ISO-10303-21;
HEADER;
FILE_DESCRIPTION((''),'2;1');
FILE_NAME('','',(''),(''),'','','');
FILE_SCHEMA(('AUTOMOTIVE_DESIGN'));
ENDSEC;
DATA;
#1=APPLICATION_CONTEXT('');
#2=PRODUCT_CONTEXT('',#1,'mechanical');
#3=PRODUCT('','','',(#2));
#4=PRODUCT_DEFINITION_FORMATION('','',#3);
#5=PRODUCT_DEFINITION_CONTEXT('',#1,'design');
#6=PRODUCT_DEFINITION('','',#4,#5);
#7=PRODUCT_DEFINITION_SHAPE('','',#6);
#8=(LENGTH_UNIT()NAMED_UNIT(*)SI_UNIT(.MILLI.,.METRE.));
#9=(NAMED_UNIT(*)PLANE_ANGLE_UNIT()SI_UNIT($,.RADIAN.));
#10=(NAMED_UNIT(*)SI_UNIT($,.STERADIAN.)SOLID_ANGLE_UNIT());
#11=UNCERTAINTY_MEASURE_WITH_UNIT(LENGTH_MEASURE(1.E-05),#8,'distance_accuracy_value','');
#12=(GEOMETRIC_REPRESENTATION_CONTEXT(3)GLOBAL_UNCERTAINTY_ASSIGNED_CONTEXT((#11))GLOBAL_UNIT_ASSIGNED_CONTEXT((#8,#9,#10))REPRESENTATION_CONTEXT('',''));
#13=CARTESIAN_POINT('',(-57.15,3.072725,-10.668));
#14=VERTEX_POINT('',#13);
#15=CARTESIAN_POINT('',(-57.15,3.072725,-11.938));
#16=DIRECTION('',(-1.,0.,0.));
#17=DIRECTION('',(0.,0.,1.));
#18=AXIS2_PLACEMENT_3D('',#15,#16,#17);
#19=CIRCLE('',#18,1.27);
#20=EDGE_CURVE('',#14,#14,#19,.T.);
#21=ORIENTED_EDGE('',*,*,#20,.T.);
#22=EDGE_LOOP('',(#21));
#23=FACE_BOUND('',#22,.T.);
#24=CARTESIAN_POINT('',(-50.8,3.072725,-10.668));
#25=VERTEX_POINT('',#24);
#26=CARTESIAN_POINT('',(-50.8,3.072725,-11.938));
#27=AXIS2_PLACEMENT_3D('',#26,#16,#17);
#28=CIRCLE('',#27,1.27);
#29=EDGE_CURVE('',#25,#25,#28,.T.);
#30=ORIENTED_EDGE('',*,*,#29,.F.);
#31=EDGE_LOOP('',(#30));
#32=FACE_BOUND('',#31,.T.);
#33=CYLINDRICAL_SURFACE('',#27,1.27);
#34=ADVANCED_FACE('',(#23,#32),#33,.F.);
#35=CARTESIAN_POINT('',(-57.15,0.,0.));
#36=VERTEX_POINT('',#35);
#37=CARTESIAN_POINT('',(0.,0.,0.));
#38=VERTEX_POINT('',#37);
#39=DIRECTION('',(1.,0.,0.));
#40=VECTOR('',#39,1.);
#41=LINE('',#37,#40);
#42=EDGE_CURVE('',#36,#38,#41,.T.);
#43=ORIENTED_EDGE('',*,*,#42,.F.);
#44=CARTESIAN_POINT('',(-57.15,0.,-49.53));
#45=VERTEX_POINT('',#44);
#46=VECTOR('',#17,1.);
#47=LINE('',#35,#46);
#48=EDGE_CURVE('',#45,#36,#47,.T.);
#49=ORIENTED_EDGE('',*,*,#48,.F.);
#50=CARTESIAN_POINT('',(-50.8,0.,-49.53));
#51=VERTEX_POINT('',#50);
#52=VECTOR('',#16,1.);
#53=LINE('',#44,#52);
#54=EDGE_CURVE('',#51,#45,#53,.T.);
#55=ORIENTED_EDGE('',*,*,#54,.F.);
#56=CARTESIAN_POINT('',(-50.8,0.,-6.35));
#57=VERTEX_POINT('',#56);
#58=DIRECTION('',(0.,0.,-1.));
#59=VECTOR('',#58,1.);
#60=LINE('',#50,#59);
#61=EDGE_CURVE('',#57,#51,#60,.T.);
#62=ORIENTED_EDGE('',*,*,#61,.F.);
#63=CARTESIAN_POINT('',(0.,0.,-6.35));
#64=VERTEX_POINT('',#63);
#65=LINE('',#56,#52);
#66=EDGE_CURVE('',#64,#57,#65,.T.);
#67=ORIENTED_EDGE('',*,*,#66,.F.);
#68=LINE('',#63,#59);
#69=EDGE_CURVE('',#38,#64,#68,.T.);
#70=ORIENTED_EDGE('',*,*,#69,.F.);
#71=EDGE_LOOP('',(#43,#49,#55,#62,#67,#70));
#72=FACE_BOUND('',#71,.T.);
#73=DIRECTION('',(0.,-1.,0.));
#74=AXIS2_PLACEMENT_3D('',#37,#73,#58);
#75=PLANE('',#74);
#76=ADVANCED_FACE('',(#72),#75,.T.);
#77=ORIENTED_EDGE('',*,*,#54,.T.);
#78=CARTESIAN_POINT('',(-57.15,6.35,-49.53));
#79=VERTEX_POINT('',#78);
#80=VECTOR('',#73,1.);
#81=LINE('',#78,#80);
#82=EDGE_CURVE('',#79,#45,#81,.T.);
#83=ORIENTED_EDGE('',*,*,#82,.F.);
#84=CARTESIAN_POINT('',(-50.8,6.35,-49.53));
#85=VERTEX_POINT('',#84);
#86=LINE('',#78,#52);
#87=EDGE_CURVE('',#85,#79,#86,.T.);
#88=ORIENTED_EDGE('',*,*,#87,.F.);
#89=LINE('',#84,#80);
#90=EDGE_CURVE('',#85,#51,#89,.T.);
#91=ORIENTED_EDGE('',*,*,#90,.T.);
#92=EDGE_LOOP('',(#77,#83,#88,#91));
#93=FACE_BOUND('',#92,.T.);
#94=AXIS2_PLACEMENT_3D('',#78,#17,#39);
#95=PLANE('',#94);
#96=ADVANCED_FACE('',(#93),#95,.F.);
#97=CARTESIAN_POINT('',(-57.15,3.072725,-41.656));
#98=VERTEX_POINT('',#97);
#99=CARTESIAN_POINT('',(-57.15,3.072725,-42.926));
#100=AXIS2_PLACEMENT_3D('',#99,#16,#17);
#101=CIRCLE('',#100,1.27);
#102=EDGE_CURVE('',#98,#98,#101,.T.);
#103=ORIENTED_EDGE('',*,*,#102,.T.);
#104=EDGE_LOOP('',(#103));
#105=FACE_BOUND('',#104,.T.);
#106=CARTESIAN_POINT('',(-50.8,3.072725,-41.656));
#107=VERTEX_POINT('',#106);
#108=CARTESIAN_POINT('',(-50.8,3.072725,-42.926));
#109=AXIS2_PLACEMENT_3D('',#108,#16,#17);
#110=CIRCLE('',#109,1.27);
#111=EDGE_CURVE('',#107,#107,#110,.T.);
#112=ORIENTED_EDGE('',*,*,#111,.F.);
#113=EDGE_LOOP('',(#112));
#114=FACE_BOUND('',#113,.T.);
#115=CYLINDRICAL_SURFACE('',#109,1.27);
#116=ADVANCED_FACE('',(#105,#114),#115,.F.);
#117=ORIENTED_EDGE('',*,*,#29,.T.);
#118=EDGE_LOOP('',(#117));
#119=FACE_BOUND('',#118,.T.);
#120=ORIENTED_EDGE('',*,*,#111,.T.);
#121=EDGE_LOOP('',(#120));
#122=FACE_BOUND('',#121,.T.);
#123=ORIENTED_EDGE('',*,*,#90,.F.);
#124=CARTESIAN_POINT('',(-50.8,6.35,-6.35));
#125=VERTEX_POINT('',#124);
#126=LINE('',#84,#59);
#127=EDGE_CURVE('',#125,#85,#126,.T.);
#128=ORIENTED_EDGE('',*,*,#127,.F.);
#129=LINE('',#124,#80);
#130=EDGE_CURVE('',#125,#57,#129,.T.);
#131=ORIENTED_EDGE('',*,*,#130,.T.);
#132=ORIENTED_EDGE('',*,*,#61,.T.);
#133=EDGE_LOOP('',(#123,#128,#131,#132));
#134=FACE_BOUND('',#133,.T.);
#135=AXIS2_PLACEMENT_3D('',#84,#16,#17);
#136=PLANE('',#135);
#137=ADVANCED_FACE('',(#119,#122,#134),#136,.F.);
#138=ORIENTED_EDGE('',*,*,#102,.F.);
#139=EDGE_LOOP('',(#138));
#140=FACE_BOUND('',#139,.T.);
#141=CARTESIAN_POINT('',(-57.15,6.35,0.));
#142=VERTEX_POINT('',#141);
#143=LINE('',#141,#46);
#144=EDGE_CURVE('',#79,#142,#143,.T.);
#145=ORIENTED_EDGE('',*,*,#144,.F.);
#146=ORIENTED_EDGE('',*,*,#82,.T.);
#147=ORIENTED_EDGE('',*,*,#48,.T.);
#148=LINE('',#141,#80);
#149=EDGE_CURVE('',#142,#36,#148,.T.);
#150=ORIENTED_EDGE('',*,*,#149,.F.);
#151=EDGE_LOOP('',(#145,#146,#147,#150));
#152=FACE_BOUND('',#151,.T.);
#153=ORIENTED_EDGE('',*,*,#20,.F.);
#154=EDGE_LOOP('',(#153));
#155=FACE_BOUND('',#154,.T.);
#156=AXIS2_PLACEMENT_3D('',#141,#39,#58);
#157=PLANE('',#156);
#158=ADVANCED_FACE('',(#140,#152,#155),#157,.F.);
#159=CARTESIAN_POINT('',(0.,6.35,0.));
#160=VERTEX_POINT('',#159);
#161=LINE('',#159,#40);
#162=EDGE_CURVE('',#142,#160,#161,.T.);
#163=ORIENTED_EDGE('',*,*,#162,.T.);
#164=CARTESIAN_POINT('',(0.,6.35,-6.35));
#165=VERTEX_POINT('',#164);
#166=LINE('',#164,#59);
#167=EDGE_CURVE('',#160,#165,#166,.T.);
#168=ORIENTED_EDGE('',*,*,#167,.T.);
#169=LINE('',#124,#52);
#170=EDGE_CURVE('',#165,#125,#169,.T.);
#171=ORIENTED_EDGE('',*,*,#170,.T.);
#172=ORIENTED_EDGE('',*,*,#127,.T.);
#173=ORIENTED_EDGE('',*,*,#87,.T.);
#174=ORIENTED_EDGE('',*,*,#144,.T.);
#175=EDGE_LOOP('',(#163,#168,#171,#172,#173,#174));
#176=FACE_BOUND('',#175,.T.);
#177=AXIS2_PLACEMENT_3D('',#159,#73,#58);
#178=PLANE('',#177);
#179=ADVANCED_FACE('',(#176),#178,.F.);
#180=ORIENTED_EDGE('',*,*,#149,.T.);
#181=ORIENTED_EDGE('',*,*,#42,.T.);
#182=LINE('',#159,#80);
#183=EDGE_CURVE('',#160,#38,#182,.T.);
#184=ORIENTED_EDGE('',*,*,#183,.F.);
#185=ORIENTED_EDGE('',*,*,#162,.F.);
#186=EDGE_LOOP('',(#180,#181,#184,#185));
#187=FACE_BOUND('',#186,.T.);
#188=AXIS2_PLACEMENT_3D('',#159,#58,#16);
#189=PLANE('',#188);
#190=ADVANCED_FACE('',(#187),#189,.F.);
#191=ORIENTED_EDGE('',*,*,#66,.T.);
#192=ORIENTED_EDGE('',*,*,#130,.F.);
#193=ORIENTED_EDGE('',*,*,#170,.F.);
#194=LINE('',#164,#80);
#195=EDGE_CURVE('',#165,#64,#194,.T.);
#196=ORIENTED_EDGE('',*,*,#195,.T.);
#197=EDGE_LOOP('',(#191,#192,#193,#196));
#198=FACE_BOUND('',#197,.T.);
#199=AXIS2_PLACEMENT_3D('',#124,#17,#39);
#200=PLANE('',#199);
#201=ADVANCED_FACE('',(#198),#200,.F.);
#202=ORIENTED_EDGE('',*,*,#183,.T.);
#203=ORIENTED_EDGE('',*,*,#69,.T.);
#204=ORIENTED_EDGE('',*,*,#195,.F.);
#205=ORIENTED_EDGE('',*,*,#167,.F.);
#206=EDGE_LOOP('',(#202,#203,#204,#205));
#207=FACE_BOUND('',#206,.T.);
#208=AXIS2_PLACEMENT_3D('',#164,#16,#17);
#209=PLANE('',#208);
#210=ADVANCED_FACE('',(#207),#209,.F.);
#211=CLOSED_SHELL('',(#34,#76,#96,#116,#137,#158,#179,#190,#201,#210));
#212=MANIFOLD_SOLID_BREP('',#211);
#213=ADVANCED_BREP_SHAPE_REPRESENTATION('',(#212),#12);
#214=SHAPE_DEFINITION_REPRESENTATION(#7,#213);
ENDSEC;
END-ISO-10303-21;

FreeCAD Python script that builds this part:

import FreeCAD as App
import Part
import Sketcher
Q = App.Units.Quantity


def add_polygon(sketch, points):
    """Adds a closed chain of lines whose ends are joined by coincident constraints."""
    first, n = sketch.GeometryCount, len(points)
    for a, b in zip(points, points[1:] + points[:1]):
        sketch.addGeometry(Part.LineSegment(App.Vector(*a, 0), App.Vector(*b, 0)), False)
    for i in range(n):
        sketch.addConstraint(Sketcher.Constraint("Coincident", first + i, 2, first + (i + 1) % n, 1))

doc = App.newDocument("Part")
body = doc.addObject("PartDesign::Body", "Body")

# Sketch on XZ plane
sketch1 = body.newObject("Sketcher::SketchObject", "Sketch")
sketch1.AttachmentSupport = (doc.getObject("XZ_Plane"), [""])
sketch1.MapMode = "FlatFace"
add_polygon(sketch1, [(-57, 0), (0, 0), (0, -6), (-51, -6), (-51, -50), (-57, -50)])  # lines 0-5
sketch1.addConstraint(Sketcher.Constraint("Horizontal", 0))
sketch1.addConstraint(Sketcher.Constraint("Vertical", 1))
sketch1.addConstraint(Sketcher.Constraint("Horizontal", 2))
sketch1.addConstraint(Sketcher.Constraint("Vertical", 3))
sketch1.addConstraint(Sketcher.Constraint("Horizontal", 4))
sketch1.addConstraint(Sketcher.Constraint("Vertical", 5))
sketch1.addConstraint(Sketcher.Constraint("Coincident", 0, 2, -1, 1))
sketch1.addConstraint(Sketcher.Constraint("Equal", 4, 1))
sketch1.addConstraint(Sketcher.Constraint("DistanceX", 2, 2, 2, 1, Q("2 in")))
sketch1.addConstraint(Sketcher.Constraint("DistanceY", 3, 2, 3, 1, Q("1.7 in")))
sketch1.addConstraint(Sketcher.Constraint("DistanceX", 0, 1, 0, 2, Q("2.25 in")))
pad1 = body.newObject("PartDesign::Pad", "Pad")
pad1.Profile = sketch1
pad1.Length = Q("0.25 in")
pad1.Reversed = True

# Sketch on YZ plane
sketch2 = body.newObject("Sketcher::SketchObject", "Sketch001")
sketch2.AttachmentSupport = (doc.getObject("YZ_Plane"), [""])
sketch2.MapMode = "FlatFace"
sketch2.AttachmentOffset = App.Placement(App.Vector(0, 0, -2.25 * 25.4), App.Rotation())
sketch2.addGeometry(Part.Circle(App.Vector(3.1, -42.9, 0), App.Vector(0, 0, 1), 1.3), False)
sketch2.addGeometry(Part.Circle(App.Vector(3.1, -11.9, 0), App.Vector(0, 0, 1), 1.3), False)
sketch2.addConstraint(Sketcher.Constraint("Equal", 0, 1))
sketch2.addConstraint(Sketcher.Constraint("Vertical", 0, 3, 1, 3))
sketch2.addConstraint(Sketcher.Constraint("Diameter", 0, Q("0.1 in")))
sketch2.addConstraint(Sketcher.Constraint("DistanceY", 0, 3, -1, 1, Q("1.69 in")))
sketch2.addConstraint(Sketcher.Constraint("DistanceY", 1, 3, -1, 1, Q("0.47 in")))
sketch2.addConstraint(Sketcher.Constraint("DistanceX", -1, 1, 0, 3, Q("3.072725 mm")))
pocket1 = body.newObject("PartDesign::Pocket", "Pocket")
pocket1.Profile = sketch2
pocket1.Length = Q("0.25 in")
pocket1.Reversed = True

doc.recompute()
